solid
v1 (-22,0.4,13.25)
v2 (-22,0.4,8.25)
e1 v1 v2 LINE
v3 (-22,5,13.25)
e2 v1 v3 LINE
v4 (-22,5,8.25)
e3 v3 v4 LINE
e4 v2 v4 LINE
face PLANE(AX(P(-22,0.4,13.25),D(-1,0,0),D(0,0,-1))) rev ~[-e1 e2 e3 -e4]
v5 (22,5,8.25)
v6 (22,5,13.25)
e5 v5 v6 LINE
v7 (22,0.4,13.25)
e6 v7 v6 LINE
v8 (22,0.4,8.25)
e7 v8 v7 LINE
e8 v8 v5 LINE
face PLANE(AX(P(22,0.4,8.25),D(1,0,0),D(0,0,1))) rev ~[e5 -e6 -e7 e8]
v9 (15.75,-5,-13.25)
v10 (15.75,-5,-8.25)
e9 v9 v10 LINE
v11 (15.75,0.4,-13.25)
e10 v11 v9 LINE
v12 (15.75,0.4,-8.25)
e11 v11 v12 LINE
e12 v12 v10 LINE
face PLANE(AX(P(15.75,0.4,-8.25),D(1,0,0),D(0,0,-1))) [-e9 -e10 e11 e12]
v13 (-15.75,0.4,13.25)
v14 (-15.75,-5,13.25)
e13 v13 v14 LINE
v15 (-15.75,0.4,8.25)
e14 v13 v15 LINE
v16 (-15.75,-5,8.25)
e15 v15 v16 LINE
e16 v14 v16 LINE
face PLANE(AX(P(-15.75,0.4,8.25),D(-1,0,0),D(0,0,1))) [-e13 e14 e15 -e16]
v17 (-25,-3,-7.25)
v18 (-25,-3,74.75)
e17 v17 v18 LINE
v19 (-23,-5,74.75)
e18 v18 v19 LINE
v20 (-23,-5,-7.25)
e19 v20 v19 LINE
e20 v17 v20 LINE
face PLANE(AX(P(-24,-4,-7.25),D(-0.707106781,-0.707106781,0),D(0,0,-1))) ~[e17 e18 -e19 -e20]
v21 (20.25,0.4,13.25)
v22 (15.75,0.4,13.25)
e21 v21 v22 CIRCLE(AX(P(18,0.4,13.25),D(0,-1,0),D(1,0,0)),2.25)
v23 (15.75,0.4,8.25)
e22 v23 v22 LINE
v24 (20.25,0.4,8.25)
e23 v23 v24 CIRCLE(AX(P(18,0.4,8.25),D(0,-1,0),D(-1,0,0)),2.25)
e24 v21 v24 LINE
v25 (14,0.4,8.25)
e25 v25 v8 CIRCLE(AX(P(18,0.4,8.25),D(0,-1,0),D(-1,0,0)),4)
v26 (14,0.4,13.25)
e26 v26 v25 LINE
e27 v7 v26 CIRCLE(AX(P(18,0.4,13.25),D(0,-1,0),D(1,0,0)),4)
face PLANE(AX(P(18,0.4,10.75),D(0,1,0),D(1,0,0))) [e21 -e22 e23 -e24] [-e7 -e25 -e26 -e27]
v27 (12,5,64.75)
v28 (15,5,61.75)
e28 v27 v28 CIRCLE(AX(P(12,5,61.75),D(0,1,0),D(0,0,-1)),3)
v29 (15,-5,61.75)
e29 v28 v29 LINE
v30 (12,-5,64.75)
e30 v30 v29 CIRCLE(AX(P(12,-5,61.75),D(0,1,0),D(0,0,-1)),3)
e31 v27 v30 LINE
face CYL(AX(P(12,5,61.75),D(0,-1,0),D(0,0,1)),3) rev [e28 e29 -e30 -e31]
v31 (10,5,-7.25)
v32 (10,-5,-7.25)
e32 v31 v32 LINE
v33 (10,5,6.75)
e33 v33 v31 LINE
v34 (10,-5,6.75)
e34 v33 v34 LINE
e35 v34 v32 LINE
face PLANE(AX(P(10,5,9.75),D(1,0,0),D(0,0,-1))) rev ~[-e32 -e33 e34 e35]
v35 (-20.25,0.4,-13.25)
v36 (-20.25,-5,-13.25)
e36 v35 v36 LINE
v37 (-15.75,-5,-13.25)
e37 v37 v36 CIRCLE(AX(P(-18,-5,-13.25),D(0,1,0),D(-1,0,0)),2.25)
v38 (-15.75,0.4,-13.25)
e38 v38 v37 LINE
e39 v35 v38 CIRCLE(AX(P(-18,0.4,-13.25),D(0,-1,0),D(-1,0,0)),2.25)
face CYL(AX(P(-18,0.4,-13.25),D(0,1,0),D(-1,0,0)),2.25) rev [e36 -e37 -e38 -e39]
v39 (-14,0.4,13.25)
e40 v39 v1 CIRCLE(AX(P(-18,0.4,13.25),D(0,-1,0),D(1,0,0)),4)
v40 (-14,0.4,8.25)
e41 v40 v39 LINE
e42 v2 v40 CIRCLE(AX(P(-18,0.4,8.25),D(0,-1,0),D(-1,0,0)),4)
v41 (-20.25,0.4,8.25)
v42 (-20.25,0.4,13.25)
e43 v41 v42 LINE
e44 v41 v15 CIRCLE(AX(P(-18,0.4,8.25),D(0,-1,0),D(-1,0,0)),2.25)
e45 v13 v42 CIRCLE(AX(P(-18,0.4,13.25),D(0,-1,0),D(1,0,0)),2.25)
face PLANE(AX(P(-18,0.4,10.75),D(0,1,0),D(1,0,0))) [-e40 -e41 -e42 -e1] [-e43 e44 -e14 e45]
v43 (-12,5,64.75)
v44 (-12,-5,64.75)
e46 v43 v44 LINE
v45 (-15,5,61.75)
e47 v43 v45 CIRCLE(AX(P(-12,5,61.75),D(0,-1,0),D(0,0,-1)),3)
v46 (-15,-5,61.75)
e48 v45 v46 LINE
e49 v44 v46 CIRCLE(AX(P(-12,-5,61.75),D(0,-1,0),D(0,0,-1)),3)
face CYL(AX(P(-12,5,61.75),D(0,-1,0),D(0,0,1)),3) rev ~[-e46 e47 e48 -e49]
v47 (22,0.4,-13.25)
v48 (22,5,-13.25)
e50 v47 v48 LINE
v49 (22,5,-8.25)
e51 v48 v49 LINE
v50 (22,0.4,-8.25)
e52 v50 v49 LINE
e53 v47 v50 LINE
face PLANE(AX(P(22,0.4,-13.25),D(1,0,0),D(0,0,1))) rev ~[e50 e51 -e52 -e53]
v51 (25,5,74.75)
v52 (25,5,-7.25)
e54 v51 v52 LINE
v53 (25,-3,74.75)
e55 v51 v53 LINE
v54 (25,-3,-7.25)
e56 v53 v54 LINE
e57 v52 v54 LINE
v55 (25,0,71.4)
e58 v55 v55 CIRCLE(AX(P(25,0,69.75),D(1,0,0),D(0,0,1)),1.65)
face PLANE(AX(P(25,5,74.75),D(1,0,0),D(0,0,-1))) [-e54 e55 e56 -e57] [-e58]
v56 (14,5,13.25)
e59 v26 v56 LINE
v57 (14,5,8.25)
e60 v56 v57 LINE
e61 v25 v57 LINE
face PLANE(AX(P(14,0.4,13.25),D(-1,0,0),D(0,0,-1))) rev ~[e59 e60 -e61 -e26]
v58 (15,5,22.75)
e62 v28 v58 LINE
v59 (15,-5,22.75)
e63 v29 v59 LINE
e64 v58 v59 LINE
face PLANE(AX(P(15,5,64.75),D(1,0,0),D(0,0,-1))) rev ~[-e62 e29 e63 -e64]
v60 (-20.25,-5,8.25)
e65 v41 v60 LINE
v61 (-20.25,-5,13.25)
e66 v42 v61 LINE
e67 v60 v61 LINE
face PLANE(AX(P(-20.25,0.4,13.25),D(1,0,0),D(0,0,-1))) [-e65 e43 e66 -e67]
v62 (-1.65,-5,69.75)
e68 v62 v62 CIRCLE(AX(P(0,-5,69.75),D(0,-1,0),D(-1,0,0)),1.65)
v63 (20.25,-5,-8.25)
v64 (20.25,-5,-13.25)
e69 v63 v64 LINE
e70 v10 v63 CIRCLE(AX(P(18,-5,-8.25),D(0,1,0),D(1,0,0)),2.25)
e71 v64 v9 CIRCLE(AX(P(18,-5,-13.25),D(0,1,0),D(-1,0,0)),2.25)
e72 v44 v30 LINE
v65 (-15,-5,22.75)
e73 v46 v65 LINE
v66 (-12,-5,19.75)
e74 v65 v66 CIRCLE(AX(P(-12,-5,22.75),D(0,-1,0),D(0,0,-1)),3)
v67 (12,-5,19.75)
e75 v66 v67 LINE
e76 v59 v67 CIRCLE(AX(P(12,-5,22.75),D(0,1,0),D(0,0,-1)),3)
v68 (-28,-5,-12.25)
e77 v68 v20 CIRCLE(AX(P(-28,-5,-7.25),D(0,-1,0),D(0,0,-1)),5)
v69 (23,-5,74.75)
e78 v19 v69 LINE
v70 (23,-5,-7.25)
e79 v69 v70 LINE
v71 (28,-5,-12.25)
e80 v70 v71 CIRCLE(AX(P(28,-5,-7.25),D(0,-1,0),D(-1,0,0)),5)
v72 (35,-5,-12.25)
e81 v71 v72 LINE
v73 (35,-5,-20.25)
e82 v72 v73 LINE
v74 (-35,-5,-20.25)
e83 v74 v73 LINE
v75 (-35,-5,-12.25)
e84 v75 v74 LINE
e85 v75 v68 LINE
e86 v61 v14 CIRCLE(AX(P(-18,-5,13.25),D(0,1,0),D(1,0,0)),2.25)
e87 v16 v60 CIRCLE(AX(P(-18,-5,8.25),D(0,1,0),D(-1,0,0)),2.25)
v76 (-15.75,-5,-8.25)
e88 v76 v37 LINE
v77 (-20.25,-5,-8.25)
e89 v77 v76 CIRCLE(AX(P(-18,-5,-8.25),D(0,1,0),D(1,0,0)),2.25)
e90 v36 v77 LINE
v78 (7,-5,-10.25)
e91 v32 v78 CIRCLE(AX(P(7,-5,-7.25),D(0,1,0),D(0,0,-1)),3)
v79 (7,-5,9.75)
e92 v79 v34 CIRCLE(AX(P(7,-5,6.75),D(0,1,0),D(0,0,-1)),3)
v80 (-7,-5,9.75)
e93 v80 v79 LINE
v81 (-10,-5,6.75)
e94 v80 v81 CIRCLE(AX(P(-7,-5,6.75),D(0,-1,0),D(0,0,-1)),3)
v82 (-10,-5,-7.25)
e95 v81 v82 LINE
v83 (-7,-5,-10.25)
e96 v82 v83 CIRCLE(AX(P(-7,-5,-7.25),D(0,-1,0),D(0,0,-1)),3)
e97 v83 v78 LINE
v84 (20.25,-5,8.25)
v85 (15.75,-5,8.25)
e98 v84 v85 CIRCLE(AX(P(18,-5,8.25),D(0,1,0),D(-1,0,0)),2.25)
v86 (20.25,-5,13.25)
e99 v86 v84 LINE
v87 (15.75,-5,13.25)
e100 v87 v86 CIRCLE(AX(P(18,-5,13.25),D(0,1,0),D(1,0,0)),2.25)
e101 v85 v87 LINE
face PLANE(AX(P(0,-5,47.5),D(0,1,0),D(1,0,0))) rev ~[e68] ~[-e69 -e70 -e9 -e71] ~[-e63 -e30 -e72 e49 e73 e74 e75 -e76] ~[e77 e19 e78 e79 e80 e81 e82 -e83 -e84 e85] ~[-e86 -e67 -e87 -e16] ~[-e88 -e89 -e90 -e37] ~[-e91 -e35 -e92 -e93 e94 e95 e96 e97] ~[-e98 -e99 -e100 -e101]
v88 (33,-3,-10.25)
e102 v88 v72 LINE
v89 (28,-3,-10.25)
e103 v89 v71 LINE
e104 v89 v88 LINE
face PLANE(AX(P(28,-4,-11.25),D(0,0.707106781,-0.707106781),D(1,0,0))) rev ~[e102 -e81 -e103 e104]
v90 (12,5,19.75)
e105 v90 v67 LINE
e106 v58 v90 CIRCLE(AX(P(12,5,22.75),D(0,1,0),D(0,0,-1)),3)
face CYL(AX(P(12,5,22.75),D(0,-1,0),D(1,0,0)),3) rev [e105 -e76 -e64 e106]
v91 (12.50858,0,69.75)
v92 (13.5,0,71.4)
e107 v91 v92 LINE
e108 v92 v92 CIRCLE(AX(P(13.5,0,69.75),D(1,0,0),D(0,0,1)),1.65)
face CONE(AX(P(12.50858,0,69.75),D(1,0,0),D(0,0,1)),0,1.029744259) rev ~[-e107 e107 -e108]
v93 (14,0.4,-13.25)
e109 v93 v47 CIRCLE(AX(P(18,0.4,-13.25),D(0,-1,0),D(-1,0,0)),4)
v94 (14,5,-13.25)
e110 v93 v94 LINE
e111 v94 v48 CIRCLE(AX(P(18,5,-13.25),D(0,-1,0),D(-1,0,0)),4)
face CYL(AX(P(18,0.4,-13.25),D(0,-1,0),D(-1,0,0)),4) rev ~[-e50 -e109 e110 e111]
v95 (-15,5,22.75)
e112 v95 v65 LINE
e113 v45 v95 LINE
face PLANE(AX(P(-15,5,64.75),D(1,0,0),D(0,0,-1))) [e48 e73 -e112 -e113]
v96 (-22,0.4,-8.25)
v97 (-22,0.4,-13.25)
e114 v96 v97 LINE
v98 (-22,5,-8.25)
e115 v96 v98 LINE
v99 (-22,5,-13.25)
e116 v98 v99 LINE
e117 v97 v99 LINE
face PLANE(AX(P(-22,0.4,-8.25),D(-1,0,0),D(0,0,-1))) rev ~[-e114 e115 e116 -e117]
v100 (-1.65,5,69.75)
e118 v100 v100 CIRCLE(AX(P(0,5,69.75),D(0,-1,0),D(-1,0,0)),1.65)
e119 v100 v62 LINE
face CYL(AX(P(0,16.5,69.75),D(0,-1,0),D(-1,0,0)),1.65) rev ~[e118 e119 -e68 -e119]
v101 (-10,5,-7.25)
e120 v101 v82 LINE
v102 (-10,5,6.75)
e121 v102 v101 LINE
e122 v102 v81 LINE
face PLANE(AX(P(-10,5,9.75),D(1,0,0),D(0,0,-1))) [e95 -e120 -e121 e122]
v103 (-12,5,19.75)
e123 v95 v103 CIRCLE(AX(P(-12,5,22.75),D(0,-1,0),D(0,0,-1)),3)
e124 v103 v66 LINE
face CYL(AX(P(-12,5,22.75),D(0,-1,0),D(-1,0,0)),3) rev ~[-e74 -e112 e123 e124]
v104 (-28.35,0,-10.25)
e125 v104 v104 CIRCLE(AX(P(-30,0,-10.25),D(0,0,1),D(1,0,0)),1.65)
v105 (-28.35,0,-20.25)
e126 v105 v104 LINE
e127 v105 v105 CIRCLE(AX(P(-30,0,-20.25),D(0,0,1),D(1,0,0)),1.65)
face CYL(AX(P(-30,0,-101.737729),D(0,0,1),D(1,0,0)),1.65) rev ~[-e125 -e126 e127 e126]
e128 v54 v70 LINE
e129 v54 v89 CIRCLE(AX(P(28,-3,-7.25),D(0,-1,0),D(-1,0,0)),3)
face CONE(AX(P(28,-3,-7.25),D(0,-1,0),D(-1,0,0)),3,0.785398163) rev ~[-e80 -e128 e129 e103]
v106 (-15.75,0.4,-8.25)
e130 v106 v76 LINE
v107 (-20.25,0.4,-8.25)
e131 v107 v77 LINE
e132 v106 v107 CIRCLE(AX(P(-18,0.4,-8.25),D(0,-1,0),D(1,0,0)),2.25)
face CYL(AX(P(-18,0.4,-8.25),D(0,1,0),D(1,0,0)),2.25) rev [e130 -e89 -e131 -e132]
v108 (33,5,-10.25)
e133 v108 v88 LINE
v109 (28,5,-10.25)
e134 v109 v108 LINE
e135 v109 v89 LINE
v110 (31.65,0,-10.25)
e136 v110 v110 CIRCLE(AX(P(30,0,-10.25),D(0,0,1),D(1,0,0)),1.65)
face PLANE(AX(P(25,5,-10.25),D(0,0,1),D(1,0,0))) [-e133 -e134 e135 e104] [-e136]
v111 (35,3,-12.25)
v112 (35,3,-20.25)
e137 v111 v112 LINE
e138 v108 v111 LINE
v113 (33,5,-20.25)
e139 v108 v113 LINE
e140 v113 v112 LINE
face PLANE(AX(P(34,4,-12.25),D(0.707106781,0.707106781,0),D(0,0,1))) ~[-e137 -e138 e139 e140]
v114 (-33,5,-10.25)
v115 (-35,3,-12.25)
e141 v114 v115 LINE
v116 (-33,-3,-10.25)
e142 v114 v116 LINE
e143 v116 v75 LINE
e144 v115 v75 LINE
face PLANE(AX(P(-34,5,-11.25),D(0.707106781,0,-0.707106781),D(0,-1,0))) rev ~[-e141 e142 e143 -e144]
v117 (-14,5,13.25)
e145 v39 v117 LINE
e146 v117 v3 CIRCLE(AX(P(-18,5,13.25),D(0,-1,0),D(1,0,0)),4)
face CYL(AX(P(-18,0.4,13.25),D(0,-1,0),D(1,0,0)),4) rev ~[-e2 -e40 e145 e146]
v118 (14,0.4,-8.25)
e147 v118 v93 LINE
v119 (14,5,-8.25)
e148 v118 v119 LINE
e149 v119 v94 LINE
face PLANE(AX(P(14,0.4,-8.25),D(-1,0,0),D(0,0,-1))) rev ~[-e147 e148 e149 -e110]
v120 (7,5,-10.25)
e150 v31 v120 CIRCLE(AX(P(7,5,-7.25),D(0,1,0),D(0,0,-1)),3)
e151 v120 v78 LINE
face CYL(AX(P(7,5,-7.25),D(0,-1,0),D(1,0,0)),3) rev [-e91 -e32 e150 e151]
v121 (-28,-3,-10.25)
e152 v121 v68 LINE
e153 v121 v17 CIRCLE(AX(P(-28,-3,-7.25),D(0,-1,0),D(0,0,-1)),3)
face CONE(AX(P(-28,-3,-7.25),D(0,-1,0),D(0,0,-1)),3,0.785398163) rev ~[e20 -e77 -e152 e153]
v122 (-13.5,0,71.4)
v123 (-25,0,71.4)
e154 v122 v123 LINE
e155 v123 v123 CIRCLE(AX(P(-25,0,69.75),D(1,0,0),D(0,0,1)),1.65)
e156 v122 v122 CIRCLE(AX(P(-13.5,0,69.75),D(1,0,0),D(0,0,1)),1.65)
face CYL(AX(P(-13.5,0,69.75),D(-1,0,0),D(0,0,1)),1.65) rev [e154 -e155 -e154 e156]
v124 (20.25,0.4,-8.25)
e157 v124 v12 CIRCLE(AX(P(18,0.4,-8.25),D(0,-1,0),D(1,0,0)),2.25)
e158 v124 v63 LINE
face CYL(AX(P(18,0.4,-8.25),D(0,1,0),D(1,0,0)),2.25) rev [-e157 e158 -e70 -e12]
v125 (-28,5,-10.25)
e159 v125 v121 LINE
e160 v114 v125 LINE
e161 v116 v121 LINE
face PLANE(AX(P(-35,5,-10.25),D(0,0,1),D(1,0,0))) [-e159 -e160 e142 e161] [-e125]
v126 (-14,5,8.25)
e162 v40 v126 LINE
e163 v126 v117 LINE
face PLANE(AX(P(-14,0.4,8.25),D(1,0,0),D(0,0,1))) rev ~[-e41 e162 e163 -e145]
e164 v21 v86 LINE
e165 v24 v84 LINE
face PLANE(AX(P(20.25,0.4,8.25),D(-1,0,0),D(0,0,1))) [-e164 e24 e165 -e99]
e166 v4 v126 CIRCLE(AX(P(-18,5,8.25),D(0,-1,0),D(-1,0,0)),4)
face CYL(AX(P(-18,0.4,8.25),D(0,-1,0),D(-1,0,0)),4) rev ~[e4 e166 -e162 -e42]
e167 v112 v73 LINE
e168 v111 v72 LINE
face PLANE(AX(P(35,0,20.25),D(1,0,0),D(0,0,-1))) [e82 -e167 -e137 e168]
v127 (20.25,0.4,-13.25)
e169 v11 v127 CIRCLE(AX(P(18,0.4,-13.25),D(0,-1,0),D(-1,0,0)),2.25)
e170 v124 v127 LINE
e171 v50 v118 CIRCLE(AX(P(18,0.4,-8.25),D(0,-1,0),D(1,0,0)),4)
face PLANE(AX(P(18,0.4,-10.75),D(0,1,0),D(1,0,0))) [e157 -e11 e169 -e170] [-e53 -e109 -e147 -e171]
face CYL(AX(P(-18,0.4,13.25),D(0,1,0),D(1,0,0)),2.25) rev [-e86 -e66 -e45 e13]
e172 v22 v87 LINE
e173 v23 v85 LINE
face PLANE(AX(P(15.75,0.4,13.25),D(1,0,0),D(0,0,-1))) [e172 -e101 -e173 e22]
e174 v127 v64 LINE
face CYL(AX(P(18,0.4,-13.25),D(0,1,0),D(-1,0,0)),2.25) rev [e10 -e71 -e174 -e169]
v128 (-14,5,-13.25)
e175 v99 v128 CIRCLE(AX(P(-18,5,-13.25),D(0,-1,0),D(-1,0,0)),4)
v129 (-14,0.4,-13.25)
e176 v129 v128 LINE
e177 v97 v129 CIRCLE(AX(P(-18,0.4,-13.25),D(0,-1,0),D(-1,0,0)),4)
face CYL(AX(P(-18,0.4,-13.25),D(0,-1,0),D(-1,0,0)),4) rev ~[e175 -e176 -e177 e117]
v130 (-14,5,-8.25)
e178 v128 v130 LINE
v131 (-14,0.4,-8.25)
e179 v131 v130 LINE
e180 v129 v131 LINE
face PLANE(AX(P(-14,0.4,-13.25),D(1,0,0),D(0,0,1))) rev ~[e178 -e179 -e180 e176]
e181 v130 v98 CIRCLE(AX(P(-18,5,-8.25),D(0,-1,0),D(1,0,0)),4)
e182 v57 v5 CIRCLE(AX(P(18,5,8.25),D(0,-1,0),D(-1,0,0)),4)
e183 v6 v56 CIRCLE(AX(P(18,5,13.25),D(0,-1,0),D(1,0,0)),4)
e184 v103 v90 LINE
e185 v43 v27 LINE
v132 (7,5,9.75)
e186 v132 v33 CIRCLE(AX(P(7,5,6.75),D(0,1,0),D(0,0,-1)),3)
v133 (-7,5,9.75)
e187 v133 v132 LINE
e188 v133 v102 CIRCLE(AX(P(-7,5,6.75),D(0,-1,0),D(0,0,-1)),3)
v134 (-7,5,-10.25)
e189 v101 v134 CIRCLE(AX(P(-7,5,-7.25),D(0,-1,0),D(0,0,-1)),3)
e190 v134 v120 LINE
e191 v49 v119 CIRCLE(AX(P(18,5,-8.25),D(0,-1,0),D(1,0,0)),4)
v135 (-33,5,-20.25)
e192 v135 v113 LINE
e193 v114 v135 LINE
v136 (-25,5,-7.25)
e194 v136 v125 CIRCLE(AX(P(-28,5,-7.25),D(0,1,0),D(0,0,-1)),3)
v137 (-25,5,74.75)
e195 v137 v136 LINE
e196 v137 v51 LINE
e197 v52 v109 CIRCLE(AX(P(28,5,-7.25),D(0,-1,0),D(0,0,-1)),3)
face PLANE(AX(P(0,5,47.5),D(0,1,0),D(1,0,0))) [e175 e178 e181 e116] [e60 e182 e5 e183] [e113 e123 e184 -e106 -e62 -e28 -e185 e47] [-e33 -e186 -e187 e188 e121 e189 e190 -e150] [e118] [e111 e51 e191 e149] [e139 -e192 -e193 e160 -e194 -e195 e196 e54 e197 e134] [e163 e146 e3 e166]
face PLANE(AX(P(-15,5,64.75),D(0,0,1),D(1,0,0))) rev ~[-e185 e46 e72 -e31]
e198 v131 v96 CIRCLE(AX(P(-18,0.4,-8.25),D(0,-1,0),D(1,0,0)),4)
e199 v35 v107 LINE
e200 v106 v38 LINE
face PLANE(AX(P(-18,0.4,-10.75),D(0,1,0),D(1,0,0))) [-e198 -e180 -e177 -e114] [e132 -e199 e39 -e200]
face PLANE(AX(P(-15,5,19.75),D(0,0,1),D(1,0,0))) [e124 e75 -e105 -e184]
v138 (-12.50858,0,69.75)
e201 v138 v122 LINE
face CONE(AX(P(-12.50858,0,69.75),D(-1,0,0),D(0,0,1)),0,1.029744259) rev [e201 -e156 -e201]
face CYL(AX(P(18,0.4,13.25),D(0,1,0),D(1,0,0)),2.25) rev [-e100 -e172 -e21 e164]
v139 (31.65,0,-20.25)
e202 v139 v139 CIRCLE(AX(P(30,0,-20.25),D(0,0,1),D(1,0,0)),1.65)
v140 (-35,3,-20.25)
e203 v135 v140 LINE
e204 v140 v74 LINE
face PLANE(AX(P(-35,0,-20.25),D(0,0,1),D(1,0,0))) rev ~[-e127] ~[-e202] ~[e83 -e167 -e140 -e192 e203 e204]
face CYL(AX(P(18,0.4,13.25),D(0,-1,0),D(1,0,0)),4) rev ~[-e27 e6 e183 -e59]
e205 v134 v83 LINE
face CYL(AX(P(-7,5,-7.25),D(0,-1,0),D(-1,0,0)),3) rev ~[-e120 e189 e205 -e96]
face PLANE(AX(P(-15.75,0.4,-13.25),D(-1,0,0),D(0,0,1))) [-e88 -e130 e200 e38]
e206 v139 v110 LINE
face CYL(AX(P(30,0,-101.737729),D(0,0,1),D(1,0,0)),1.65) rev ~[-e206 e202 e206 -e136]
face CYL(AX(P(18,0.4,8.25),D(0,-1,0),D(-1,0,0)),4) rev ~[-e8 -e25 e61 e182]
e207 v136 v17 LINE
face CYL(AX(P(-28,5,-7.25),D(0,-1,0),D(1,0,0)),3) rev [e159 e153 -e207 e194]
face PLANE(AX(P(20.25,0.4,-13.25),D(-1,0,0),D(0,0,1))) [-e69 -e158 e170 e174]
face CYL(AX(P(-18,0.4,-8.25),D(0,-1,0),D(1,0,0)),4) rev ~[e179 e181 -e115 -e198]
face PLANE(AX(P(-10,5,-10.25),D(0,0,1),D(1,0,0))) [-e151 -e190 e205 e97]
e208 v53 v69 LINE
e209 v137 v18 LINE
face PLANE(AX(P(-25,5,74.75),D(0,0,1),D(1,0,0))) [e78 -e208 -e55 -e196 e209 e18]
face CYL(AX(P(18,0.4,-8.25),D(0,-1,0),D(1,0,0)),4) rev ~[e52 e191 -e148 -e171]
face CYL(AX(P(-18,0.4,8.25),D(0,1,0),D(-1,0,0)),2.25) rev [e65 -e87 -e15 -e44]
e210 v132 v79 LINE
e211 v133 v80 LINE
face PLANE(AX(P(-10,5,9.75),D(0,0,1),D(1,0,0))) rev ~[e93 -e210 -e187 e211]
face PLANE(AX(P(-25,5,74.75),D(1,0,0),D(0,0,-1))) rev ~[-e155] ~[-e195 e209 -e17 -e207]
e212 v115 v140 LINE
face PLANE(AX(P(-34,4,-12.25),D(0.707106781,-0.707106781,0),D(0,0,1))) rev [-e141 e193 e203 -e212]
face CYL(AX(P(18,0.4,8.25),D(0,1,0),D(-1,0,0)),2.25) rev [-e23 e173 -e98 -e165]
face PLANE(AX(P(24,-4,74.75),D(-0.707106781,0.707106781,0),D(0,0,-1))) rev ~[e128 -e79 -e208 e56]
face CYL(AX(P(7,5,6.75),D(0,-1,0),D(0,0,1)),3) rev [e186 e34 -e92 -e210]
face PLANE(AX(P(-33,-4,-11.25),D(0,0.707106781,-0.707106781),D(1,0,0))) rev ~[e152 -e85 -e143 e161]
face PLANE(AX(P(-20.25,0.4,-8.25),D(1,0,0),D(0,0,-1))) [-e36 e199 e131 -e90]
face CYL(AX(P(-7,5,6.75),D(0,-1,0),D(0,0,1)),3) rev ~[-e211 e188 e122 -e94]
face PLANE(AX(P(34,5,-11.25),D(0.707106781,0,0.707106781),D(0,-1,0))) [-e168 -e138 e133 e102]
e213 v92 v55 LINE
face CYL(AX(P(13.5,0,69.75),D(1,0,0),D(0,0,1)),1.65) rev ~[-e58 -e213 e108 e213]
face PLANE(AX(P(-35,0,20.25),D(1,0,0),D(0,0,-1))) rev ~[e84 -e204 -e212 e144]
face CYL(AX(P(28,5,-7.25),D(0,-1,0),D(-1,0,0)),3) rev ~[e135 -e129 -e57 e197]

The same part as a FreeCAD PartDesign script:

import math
import FreeCAD as App
import Part
import Sketcher
Q = App.Units.Quantity


def edges_at(feature, points):
    """Names of the edges that pass closest to the given points."""
    edges = feature.Shape.Edges
    near = lambda p: min(range(len(edges)), key=lambda i: edges[i].distToShape(Part.Vertex(*p))[0])
    return sorted({f"Edge{near(p) + 1}" for p in points})

doc = App.newDocument("Part")
params = doc.addObject("Spreadsheet::Sheet", "Params")
for row, (alias, value) in enumerate([
    ("sketch1_width", "70 mm"),
    ("sketch1_height", "40.5 mm"),
    ("pad1_length", "10 mm"),
    ("sketch2_diameter", "4.5 mm"),
    ("hole_diameter", "4.5 mm"),
    ("hole_cbore_diameter", "8 mm"),
    ("hole_cbore_depth", "4.6 mm"),
    ("sketch3_radius", "4 mm"),
    ("sketch3_height", "5 mm"),
    ("sketch4_height", "5 mm"),
    ("sketch4_radius", "2.25 mm"),
    ("sketch5_diameter", "3.3 mm"),
    ("hole2_diameter", "3.3 mm"),
    ("sketch6_width", "10 mm"),
    ("sketch6_height", "30.5 mm"),
    ("sketch7_width", "50 mm"),
    ("sketch7_height", "54.5 mm"),
    ("pad2_length", "10 mm"),
    ("sketch8_width", "20 mm"),
    ("sketch8_width2", "30 mm"),
    ("sketch8_height", "45 mm"),
    ("sketch9_width", "11.5 mm"),
    ("sketch9_height", "1.65 mm"),
    ("groove_angle", "360 deg"),
    ("sketch10_diameter", "3.3 mm"),
    ("hole3_diameter", "3.3 mm"),
    ("hole3_depth", "11.5 mm"),
    ("fillet_radius", "3 mm"),
    ("chamfer_size", "2 mm"),
    ("chamfer2_size", "2 mm"),
    ("chamfer3_size", "2 mm"),
], start=1):
    params.set(f"A{row}", alias)
    params.set(f"B{row}", "=" + value)
    params.setAlias(f"B{row}", alias)

body = doc.addObject("PartDesign::Body", "Body")

# Sketch on XZ plane
sketch1 = doc.addObject("Sketcher::SketchObject", "Sketch")
body.addObject(sketch1)
sketch1.AttachmentSupport = (doc.XZ_Plane, [""])
sketch1.MapMode = "FlatFace"
sketch1.addGeometry([
    Part.LineSegment(App.Vector(-35, -20, 0), App.Vector(-35, 20, 0)),
    Part.LineSegment(App.Vector(-35, 20, 0), App.Vector(35, 20, 0)),
    Part.LineSegment(App.Vector(35, 20, 0), App.Vector(35, -20, 0)),
    Part.LineSegment(App.Vector(35, -20, 0), App.Vector(-35, -20, 0)),
], False)
sketch1.addConstraint([
    Sketcher.Constraint("Coincident", 0, 2, 1, 1),
    Sketcher.Constraint("Coincident", 1, 2, 2, 1),
    Sketcher.Constraint("Coincident", 2, 2, 3, 1),
    Sketcher.Constraint("Coincident", 3, 2, 0, 1),
    Sketcher.Constraint("Vertical", 0),
    Sketcher.Constraint("Horizontal", 1),
    Sketcher.Constraint("Vertical", 2),
    Sketcher.Constraint("Horizontal", 3),
    Sketcher.Constraint("Symmetric", 0, 2, 2, 2, -1, 1),
    Sketcher.Constraint("DistanceX", 1, 1, 1, 2, 70.0),
    Sketcher.Constraint("DistanceY", 0, 1, 0, 2, 40.5),
])
sketch1.setExpression("Constraints[9]", "Params.sketch1_width")
sketch1.setExpression("Constraints[10]", "Params.sketch1_height")
pad1 = doc.addObject("PartDesign::Pad", "Pad")
body.addObject(pad1)
pad1.Profile = sketch1
pad1.setExpression("Length", "Params.pad1_length")
pad1.Midplane = True

# Sketch on XZ plane
sketch2 = doc.addObject("Sketcher::SketchObject", "Sketch001")
body.addObject(sketch2)
sketch2.AttachmentSupport = (doc.XZ_Plane, [""])
sketch2.MapMode = "FlatFace"
sketch2.AttachmentOffset = App.Placement(App.Vector(0, 0, -5), App.Rotation())
sketch2.addGeometry([
    Part.Circle(App.Vector(-18, -10.8, 0), App.Vector(0, 0, 1), 2.2),
    Part.Circle(App.Vector(18, -10.8, 0), App.Vector(0, 0, 1), 2.2),
    Part.Circle(App.Vector(18, 10.8, 0), App.Vector(0, 0, 1), 2.2),
    Part.Circle(App.Vector(-18, 10.8, 0), App.Vector(0, 0, 1), 2.2),
], False)
sketch2.addConstraint([
    Sketcher.Constraint("Equal", 0, 1),
    Sketcher.Constraint("Equal", 1, 2),
    Sketcher.Constraint("Equal", 2, 3),
    Sketcher.Constraint("Symmetric", 0, 3, 2, 3, -1, 1),
    Sketcher.Constraint("Symmetric", 1, 3, 3, 3, -1, 1),
    Sketcher.Constraint("Symmetric", 0, 3, 1, 3, -2),
    Sketcher.Constraint("Diameter", 0, 4.5),
    Sketcher.Constraint("DistanceX", 0, 3, -1, 1, 18.0),
    Sketcher.Constraint("DistanceY", 1, 3, 2, 3, 21.5),
])
sketch2.setExpression("Constraints[6]", "Params.sketch2_diameter")
doc.recompute()
hole = doc.addObject("PartDesign::Hole", "Hole")
body.addObject(hole)
hole.Profile = sketch2
hole.ThreadType = "None"
hole.setExpression("Diameter", "Params.hole_diameter")
hole.DepthType = "ThroughAll"
hole.HoleCutType = "Counterbore"
hole.setExpression("HoleCutDiameter", "Params.hole_cbore_diameter")
hole.setExpression("HoleCutDepth", "Params.hole_cbore_depth")
hole.Reversed = True

# Sketch on XZ plane
sketch3 = doc.addObject("Sketcher::SketchObject", "Sketch002")
body.addObject(sketch3)
sketch3.AttachmentSupport = (doc.XZ_Plane, [""])
sketch3.MapMode = "FlatFace"
sketch3.AttachmentOffset = App.Placement(App.Vector(0, 0, -0.4), App.Rotation())
sketch3.addGeometry([
    Part.LineSegment(App.Vector(-22, -13.2, 0), App.Vector(-22, -8.2, 0)),  # 0
    Part.ArcOfCircle(Part.Circle(App.Vector(-18, -8.2, 0), App.Vector(0, 0, 1), 4), math.radians(0), math.radians(180)),  # 1
    Part.LineSegment(App.Vector(-14, -8.2, 0), App.Vector(-14, -13.2, 0)),  # 2
    Part.ArcOfCircle(Part.Circle(App.Vector(-18, -13.2, 0), App.Vector(0, 0, 1), 4), math.radians(180), math.radians(360)),  # 3
    Part.LineSegment(App.Vector(22, -8.2, 0), App.Vector(22, -13.2, 0)),  # 4
    Part.ArcOfCircle(Part.Circle(App.Vector(18, -13.2, 0), App.Vector(0, 0, 1), 4), math.radians(180), math.radians(360)),  # 5
    Part.LineSegment(App.Vector(14, -13.2, 0), App.Vector(14, -8.2, 0)),  # 6
    Part.ArcOfCircle(Part.Circle(App.Vector(18, -8.2, 0), App.Vector(0, 0, 1), 4), math.radians(0), math.radians(180)),  # 7
    Part.LineSegment(App.Vector(-14, 13.2, 0), App.Vector(-14, 8.2, 0)),  # 8
    Part.ArcOfCircle(Part.Circle(App.Vector(-18, 8.2, 0), App.Vector(0, 0, 1), 4), math.radians(180), math.radians(360)),  # 9
    Part.LineSegment(App.Vector(-22, 8.2, 0), App.Vector(-22, 13.2, 0)),  # 10
    Part.ArcOfCircle(Part.Circle(App.Vector(-18, 13.2, 0), App.Vector(0, 0, 1), 4), math.radians(0), math.radians(180)),  # 11
    Part.LineSegment(App.Vector(22, 13.2, 0), App.Vector(22, 8.2, 0)),  # 12
    Part.ArcOfCircle(Part.Circle(App.Vector(18, 8.2, 0), App.Vector(0, 0, 1), 4), math.radians(180), math.radians(360)),  # 13
    Part.LineSegment(App.Vector(14, 8.2, 0), App.Vector(14, 13.2, 0)),  # 14
    Part.ArcOfCircle(Part.Circle(App.Vector(18, 13.2, 0), App.Vector(0, 0, 1), 4), math.radians(0), math.radians(180)),  # 15
], False)
sketch3.addConstraint([
    Sketcher.Constraint("Tangent", 0, 2, 1, 2),
    Sketcher.Constraint("Tangent", 1, 1, 2, 1),
    Sketcher.Constraint("Tangent", 2, 2, 3, 2),
    Sketcher.Constraint("Tangent", 3, 1, 0, 1),
    Sketcher.Constraint("Tangent", 4, 2, 5, 2),
    Sketcher.Constraint("Tangent", 5, 1, 6, 1),
    Sketcher.Constraint("Tangent", 6, 2, 7, 2),
    Sketcher.Constraint("Tangent", 7, 1, 4, 1),
    Sketcher.Constraint("Tangent", 8, 2, 9, 2),
    Sketcher.Constraint("Tangent", 9, 1, 10, 1),
    Sketcher.Constraint("Tangent", 10, 2, 11, 2),
    Sketcher.Constraint("Tangent", 11, 1, 8, 1),
    Sketcher.Constraint("Tangent", 12, 2, 13, 2),
    Sketcher.Constraint("Tangent", 13, 1, 14, 1),
    Sketcher.Constraint("Tangent", 14, 2, 15, 2),
    Sketcher.Constraint("Tangent", 15, 1, 12, 1),
    Sketcher.Constraint("Vertical", 0),
    Sketcher.Constraint("Vertical", 2),
    Sketcher.Constraint("Vertical", 4),
    Sketcher.Constraint("Vertical", 6),
    Sketcher.Constraint("Vertical", 8),
    Sketcher.Constraint("Vertical", 10),
    Sketcher.Constraint("Vertical", 12),
    Sketcher.Constraint("Vertical", 14),
    Sketcher.Constraint("Equal", 3, 5),
    Sketcher.Constraint("Equal", 7, 9),
    Sketcher.Constraint("Equal", 11, 13),
    Sketcher.Constraint("Symmetric", 7, 3, 9, 3, -1, 1),
    Sketcher.Constraint("Symmetric", 1, 3, 13, 3, -1, 1),
    Sketcher.Constraint("Symmetric", 3, 3, 5, 3, -2),
    Sketcher.Constraint("Horizontal", 1, 3, 7, 3),
    Sketcher.Constraint("Horizontal", 11, 3, 15, 3),
    Sketcher.Constraint("Equal", 6, 8),
    Sketcher.Constraint("Radius", 1, 4.0),
    Sketcher.Constraint("DistanceY", 0, 1, 0, 2, 5.0),
    Sketcher.Constraint("DistanceX", 1, 3, -1, 1, 18.0),
    Sketcher.Constraint("DistanceY", 1, 3, 9, 3, 16.5),
])
sketch3.setExpression("Constraints[33]", "Params.sketch3_radius")
sketch3.setExpression("Constraints[34]", "Params.sketch3_height")
pocket1 = doc.addObject("PartDesign::Pocket", "Pocket")
body.addObject(pocket1)
pocket1.Profile = sketch3
pocket1.Type = "ThroughAll"

# Sketch on XZ plane
sketch4 = doc.addObject("Sketcher::SketchObject", "Sketch003")
body.addObject(sketch4)
sketch4.AttachmentSupport = (doc.XZ_Plane, [""])
sketch4.MapMode = "FlatFace"
sketch4.AttachmentOffset = App.Placement(App.Vector(0, 0, -0.4), App.Rotation())
sketch4.addGeometry([
    Part.LineSegment(App.Vector(-15.8, -8.2, 0), App.Vector(-15.8, -13.2, 0)),  # 0
    Part.ArcOfCircle(Part.Circle(App.Vector(-18, -13.2, 0), App.Vector(0, 0, 1), 2.2), math.radians(180), math.radians(360)),  # 1
    Part.LineSegment(App.Vector(-20.2, -13.2, 0), App.Vector(-20.2, -8.2, 0)),  # 2
    Part.ArcOfCircle(Part.Circle(App.Vector(-18, -8.2, 0), App.Vector(0, 0, 1), 2.2), math.radians(0), math.radians(180)),  # 3
    Part.LineSegment(App.Vector(20.2, -8.2, 0), App.Vector(20.2, -13.2, 0)),  # 4
    Part.ArcOfCircle(Part.Circle(App.Vector(18, -13.2, 0), App.Vector(0, 0, 1), 2.2), math.radians(180), math.radians(360)),  # 5
    Part.LineSegment(App.Vector(15.8, -13.2, 0), App.Vector(15.8, -8.2, 0)),  # 6
    Part.ArcOfCircle(Part.Circle(App.Vector(18, -8.2, 0), App.Vector(0, 0, 1), 2.2), math.radians(0), math.radians(180)),  # 7
    Part.LineSegment(App.Vector(-15.8, 13.2, 0), App.Vector(-15.8, 8.2, 0)),  # 8
    Part.ArcOfCircle(Part.Circle(App.Vector(-18, 8.2, 0), App.Vector(0, 0, 1), 2.2), math.radians(180), math.radians(360)),  # 9
    Part.LineSegment(App.Vector(-20.2, 8.2, 0), App.Vector(-20.2, 13.2, 0)),  # 10
    Part.ArcOfCircle(Part.Circle(App.Vector(-18, 13.2, 0), App.Vector(0, 0, 1), 2.2), math.radians(0), math.radians(180)),  # 11
    Part.LineSegment(App.Vector(20.2, 13.2, 0), App.Vector(20.2, 8.2, 0)),  # 12
    Part.ArcOfCircle(Part.Circle(App.Vector(18, 8.2, 0), App.Vector(0, 0, 1), 2.2), math.radians(180), math.radians(360)),  # 13
    Part.LineSegment(App.Vector(15.8, 8.2, 0), App.Vector(15.8, 13.2, 0)),  # 14
    Part.ArcOfCircle(Part.Circle(App.Vector(18, 13.2, 0), App.Vector(0, 0, 1), 2.2), math.radians(0), math.radians(180)),  # 15
], False)
sketch4.addConstraint([
    Sketcher.Constraint("Tangent", 0, 2, 1, 2),
    Sketcher.Constraint("Tangent", 1, 1, 2, 1),
    Sketcher.Constraint("Tangent", 2, 2, 3, 2),
    Sketcher.Constraint("Tangent", 3, 1, 0, 1),
    Sketcher.Constraint("Tangent", 4, 2, 5, 2),
    Sketcher.Constraint("Tangent", 5, 1, 6, 1),
    Sketcher.Constraint("Tangent", 6, 2, 7, 2),
    Sketcher.Constraint("Tangent", 7, 1, 4, 1),
    Sketcher.Constraint("Tangent", 8, 2, 9, 2),
    Sketcher.Constraint("Tangent", 9, 1, 10, 1),
    Sketcher.Constraint("Tangent", 10, 2, 11, 2),
    Sketcher.Constraint("Tangent", 11, 1, 8, 1),
    Sketcher.Constraint("Tangent", 12, 2, 13, 2),
    Sketcher.Constraint("Tangent", 13, 1, 14, 1),
    Sketcher.Constraint("Tangent", 14, 2, 15, 2),
    Sketcher.Constraint("Tangent", 15, 1, 12, 1),
    Sketcher.Constraint("Vertical", 0),
    Sketcher.Constraint("Vertical", 2),
    Sketcher.Constraint("Vertical", 4),
    Sketcher.Constraint("Vertical", 6),
    Sketcher.Constraint("Vertical", 8),
    Sketcher.Constraint("Vertical", 10),
    Sketcher.Constraint("Vertical", 12),
    Sketcher.Constraint("Vertical", 14),
    Sketcher.Constraint("Equal", 3, 5),
    Sketcher.Constraint("Equal", 7, 9),
    Sketcher.Constraint("Equal", 11, 13),
    Sketcher.Constraint("Symmetric", 7, 3, 9, 3, -1, 1),
    Sketcher.Constraint("Symmetric", 3, 3, 13, 3, -1, 1),
    Sketcher.Constraint("Symmetric", 1, 3, 5, 3, -2),
    Sketcher.Constraint("Horizontal", 3, 3, 7, 3),
    Sketcher.Constraint("Horizontal", 11, 3, 15, 3),
    Sketcher.Constraint("Equal", 6, 8),
    Sketcher.Constraint("DistanceY", 0, 2, 0, 1, 5.0),
    Sketcher.Constraint("Radius", 1, 2.25),
    Sketcher.Constraint("DistanceX", 1, 3, -1, 1, 18.0),
    Sketcher.Constraint("DistanceY", 3, 3, 9, 3, 16.5),
])
sketch4.setExpression("Constraints[33]", "Params.sketch4_height")
sketch4.setExpression("Constraints[34]", "Params.sketch4_radius")
pocket2 = doc.addObject("PartDesign::Pocket", "Pocket001")
body.addObject(pocket2)
pocket2.Profile = sketch4
pocket2.Type = "ThroughAll"
pocket2.Reversed = True

# Sketch on XY plane
sketch5 = doc.addObject("Sketcher::SketchObject", "Sketch004")
body.addObject(sketch5)
sketch5.AttachmentSupport = (doc.XY_Plane, [""])
sketch5.MapMode = "FlatFace"
sketch5.AttachmentOffset = App.Placement(App.Vector(0, 0, -20.25), App.Rotation())
sketch5.addGeometry([
    Part.Circle(App.Vector(30, 0, 0), App.Vector(0, 0, 1), 1.6),
    Part.Circle(App.Vector(-30, 0, 0), App.Vector(0, 0, 1), 1.6),
], False)
sketch5.addConstraint([
    Sketcher.Constraint("Equal", 0, 1),
    Sketcher.Constraint("Symmetric", 0, 3, 1, 3, -1, 1),
    Sketcher.Constraint("PointOnObject", 0, 3, -1),
    Sketcher.Constraint("Diameter", 0, 3.3),
    Sketcher.Constraint("DistanceX", -1, 1, 0, 3, 30.0),
])
sketch5.setExpression("Constraints[3]", "Params.sketch5_diameter")
doc.recompute()
hole2 = doc.addObject("PartDesign::Hole", "Hole001")
body.addObject(hole2)
hole2.Profile = sketch5
hole2.ThreadType = "None"
hole2.setExpression("Diameter", "Params.hole2_diameter")
hole2.DepthType = "ThroughAll"
hole2.Reversed = True

# Sketch on XZ plane
sketch6 = doc.addObject("Sketcher::SketchObject", "Sketch005")
body.addObject(sketch6)
sketch6.AttachmentSupport = (doc.XZ_Plane, [""])
sketch6.MapMode = "FlatFace"
sketch6.AttachmentOffset = App.Placement(App.Vector(0, 0, -5), App.Rotation())
sketch6.addGeometry([
    Part.LineSegment(App.Vector(-35, -10, 0), App.Vector(-35, 20, 0)),  # 0
    Part.LineSegment(App.Vector(-35, 20, 0), App.Vector(-25, 20, 0)),  # 1
    Part.LineSegment(App.Vector(-25, 20, 0), App.Vector(-25, -10, 0)),  # 2
    Part.LineSegment(App.Vector(-25, -10, 0), App.Vector(-35, -10, 0)),  # 3
    Part.LineSegment(App.Vector(25, -10, 0), App.Vector(25, 20, 0)),  # 4
    Part.LineSegment(App.Vector(25, 20, 0), App.Vector(35, 20, 0)),  # 5
    Part.LineSegment(App.Vector(35, 20, 0), App.Vector(35, -10, 0)),  # 6
    Part.LineSegment(App.Vector(35, -10, 0), App.Vector(25, -10, 0)),  # 7
], False)
sketch6.addConstraint([
    Sketcher.Constraint("Coincident", 0, 2, 1, 1),
    Sketcher.Constraint("Coincident", 1, 2, 2, 1),
    Sketcher.Constraint("Coincident", 2, 2, 3, 1),
    Sketcher.Constraint("Coincident", 3, 2, 0, 1),
    Sketcher.Constraint("Coincident", 4, 2, 5, 1),
    Sketcher.Constraint("Coincident", 5, 2, 6, 1),
    Sketcher.Constraint("Coincident", 6, 2, 7, 1),
    Sketcher.Constraint("Coincident", 7, 2, 4, 1),
    Sketcher.Constraint("Vertical", 0),
    Sketcher.Constraint("Horizontal", 1),
    Sketcher.Constraint("Vertical", 2),
    Sketcher.Constraint("Horizontal", 3),
    Sketcher.Constraint("Vertical", 4),
    Sketcher.Constraint("Horizontal", 5),
    Sketcher.Constraint("Vertical", 6),
    Sketcher.Constraint("Horizontal", 7),
    Sketcher.Constraint("Symmetric", 1, 2, 4, 2, -2),
    Sketcher.Constraint("Symmetric", 3, 2, 6, 2, -2),
    Sketcher.Constraint("DistanceX", 1, 1, 1, 2, 10.0),
    Sketcher.Constraint("DistanceY", 0, 1, 0, 2, 30.5),
    Sketcher.Constraint("DistanceX", 0, 2, -1, 1, 35.0),
    Sketcher.Constraint("DistanceY", -1, 1, 0, 2, 20.25),
])
sketch6.setExpression("Constraints[18]", "Params.sketch6_width")
sketch6.setExpression("Constraints[19]", "Params.sketch6_height")
pocket3 = doc.addObject("PartDesign::Pocket", "Pocket002")
body.addObject(pocket3)
pocket3.Profile = sketch6
pocket3.Type = "ThroughAll"
pocket3.Reversed = True

# Sketch on XZ plane
sketch7 = doc.addObject("Sketcher::SketchObject", "Sketch006")
body.addObject(sketch7)
sketch7.AttachmentSupport = (doc.XZ_Plane, [""])
sketch7.MapMode = "FlatFace"
sketch7.AttachmentOffset = App.Placement(App.Vector(0, 0, -5), App.Rotation())
sketch7.addGeometry([
    Part.LineSegment(App.Vector(-25, 20, 0), App.Vector(-25, 75, 0)),
    Part.LineSegment(App.Vector(-25, 75, 0), App.Vector(25, 75, 0)),
    Part.LineSegment(App.Vector(25, 75, 0), App.Vector(25, 20, 0)),
    Part.LineSegment(App.Vector(25, 20, 0), App.Vector(-25, 20, 0)),
], False)
sketch7.addConstraint([
    Sketcher.Constraint("Coincident", 0, 2, 1, 1),
    Sketcher.Constraint("Coincident", 1, 2, 2, 1),
    Sketcher.Constraint("Coincident", 2, 2, 3, 1),
    Sketcher.Constraint("Coincident", 3, 2, 0, 1),
    Sketcher.Constraint("Vertical", 0),
    Sketcher.Constraint("Horizontal", 1),
    Sketcher.Constraint("Vertical", 2),
    Sketcher.Constraint("Horizontal", 3),
    Sketcher.Constraint("DistanceX", 1, 1, 1, 2, 50.0),
    Sketcher.Constraint("DistanceY", 0, 1, 0, 2, 54.5),
    Sketcher.Constraint("DistanceX", 0, 2, -1, 1, 25.0),
    Sketcher.Constraint("DistanceY", -1, 1, 0, 2, 74.75),
])
sketch7.setExpression("Constraints[8]", "Params.sketch7_width")
sketch7.setExpression("Constraints[9]", "Params.sketch7_height")
pad2 = doc.addObject("PartDesign::Pad", "Pad001")
body.addObject(pad2)
pad2.Profile = sketch7
pad2.setExpression("Length", "Params.pad2_length")

# Sketch on XZ plane
sketch8 = doc.addObject("Sketcher::SketchObject", "Sketch007")
body.addObject(sketch8)
sketch8.AttachmentSupport = (doc.XZ_Plane, [""])
sketch8.MapMode = "FlatFace"
sketch8.AttachmentOffset = App.Placement(App.Vector(0, 0, -5), App.Rotation())
sketch8.addGeometry([
    Part.LineSegment(App.Vector(-10, -10, 0), App.Vector(-10, 10, 0)),  # 0
    Part.LineSegment(App.Vector(-10, 10, 0), App.Vector(10, 10, 0)),  # 1
    Part.LineSegment(App.Vector(10, 10, 0), App.Vector(10, -10, 0)),  # 2
    Part.LineSegment(App.Vector(10, -10, 0), App.Vector(-10, -10, 0)),  # 3
    Part.LineSegment(App.Vector(-15, 20, 0), App.Vector(-15, 65, 0)),  # 4
    Part.LineSegment(App.Vector(-15, 65, 0), App.Vector(15, 65, 0)),  # 5
    Part.LineSegment(App.Vector(15, 65, 0), App.Vector(15, 20, 0)),  # 6
    Part.LineSegment(App.Vector(15, 20, 0), App.Vector(-15, 20, 0)),  # 7
], False)
sketch8.addConstraint([
    Sketcher.Constraint("Coincident", 0, 2, 1, 1),
    Sketcher.Constraint("Coincident", 1, 2, 2, 1),
    Sketcher.Constraint("Coincident", 2, 2, 3, 1),
    Sketcher.Constraint("Coincident", 3, 2, 0, 1),
    Sketcher.Constraint("Coincident", 4, 2, 5, 1),
    Sketcher.Constraint("Coincident", 5, 2, 6, 1),
    Sketcher.Constraint("Coincident", 6, 2, 7, 1),
    Sketcher.Constraint("Coincident", 7, 2, 4, 1),
    Sketcher.Constraint("Vertical", 0),
    Sketcher.Constraint("Horizontal", 1),
    Sketcher.Constraint("Vertical", 2),
    Sketcher.Constraint("Horizontal", 3),
    Sketcher.Constraint("Vertical", 4),
    Sketcher.Constraint("Horizontal", 5),
    Sketcher.Constraint("Vertical", 6),
    Sketcher.Constraint("Horizontal", 7),
    Sketcher.Constraint("Equal", 3, 0),
    Sketcher.Constraint("DistanceX", 1, 1, 1, 2, 20.0),
    Sketcher.Constraint("DistanceX", 5, 1, 5, 2, 30.0),
    Sketcher.Constraint("DistanceY", 4, 1, 4, 2, 45.0),
    Sketcher.Constraint("DistanceX", 0, 2, -1, 1, 10.0),
    Sketcher.Constraint("DistanceX", 4, 2, -1, 1, 15.0),
    Sketcher.Constraint("DistanceY", 0, 2, 4, 2, 55.0),
    Sketcher.Constraint("DistanceY", -1, 1, 0, 2, 9.75),
])
sketch8.setExpression("Constraints[17]", "Params.sketch8_width")
sketch8.setExpression("Constraints[18]", "Params.sketch8_width2")
sketch8.setExpression("Constraints[19]", "Params.sketch8_height")
pocket4 = doc.addObject("PartDesign::Pocket", "Pocket003")
body.addObject(pocket4)
pocket4.Profile = sketch8
pocket4.Type = "ThroughAll"
pocket4.Reversed = True

# Sketch on XZ plane
sketch9 = doc.addObject("Sketcher::SketchObject", "Sketch008")
body.addObject(sketch9)
sketch9.AttachmentSupport = (doc.XZ_Plane, [""])
sketch9.MapMode = "FlatFace"
sketch9.addGeometry([
    Part.LineSegment(App.Vector(-12.5, 69.8, 0), App.Vector(-25, 69.8, 0)),
    Part.LineSegment(App.Vector(-25, 69.8, 0), App.Vector(-25, 71.4, 0)),
    Part.LineSegment(App.Vector(-25, 71.4, 0), App.Vector(-13.5, 71.4, 0)),
    Part.LineSegment(App.Vector(-13.5, 71.4, 0), App.Vector(-12.5, 69.8, 0)),
], False)
sketch9.addGeometry(Part.LineSegment(App.Vector(-25, 69.8, 0), App.Vector(-12.5, 69.8, 0)), True)  # axis
sketch9.addConstraint([
    Sketcher.Constraint("Coincident", 0, 2, 1, 1),
    Sketcher.Constraint("Coincident", 1, 2, 2, 1),
    Sketcher.Constraint("Coincident", 2, 2, 3, 1),
    Sketcher.Constraint("Coincident", 3, 2, 0, 1),
    Sketcher.Constraint("Horizontal", 0),
    Sketcher.Constraint("Vertical", 1),
    Sketcher.Constraint("Horizontal", 2),
    Sketcher.Constraint("Horizontal", 4),
    Sketcher.Constraint("Coincident", 4, 1, 0, 2),
    Sketcher.Constraint("Equal", 0, 4),
    Sketcher.Constraint("Angle", 3, Q("-59 deg")),
    Sketcher.Constraint("DistanceX", 2, 1, 2, 2, 11.5),
    Sketcher.Constraint("DistanceX", 0, 2, -1, 1, 25.0),
    Sketcher.Constraint("DistanceY", 1, 1, 1, 2, 1.65),
    Sketcher.Constraint("DistanceY", -1, 1, 1, 2, 71.4),
])
sketch9.setExpression("Constraints[11]", "Params.sketch9_width")
sketch9.setExpression("Constraints[13]", "Params.sketch9_height")
groove = doc.addObject("PartDesign::Groove", "Groove")
body.addObject(groove)
groove.Profile = sketch9
groove.ReferenceAxis = (sketch9, ["Axis0"])
groove.setExpression("Angle", "Params.groove_angle")
doc.recompute()

mirrored = doc.addObject("PartDesign::Mirrored", "Mirrored")
body.addObject(mirrored)
mirrored.Originals = [groove]
mirrored.MirrorPlane = (doc.YZ_Plane, [""])
body.Tip = mirrored

# Sketch on XZ plane
sketch10 = doc.addObject("Sketcher::SketchObject", "Sketch009")
body.addObject(sketch10)
sketch10.AttachmentSupport = (doc.XZ_Plane, [""])
sketch10.MapMode = "FlatFace"
sketch10.AttachmentOffset = App.Placement(App.Vector(0, 0, -5), App.Rotation())
sketch10.addGeometry(Part.Circle(App.Vector(0, 69.8, 0), App.Vector(0, 0, 1), 1.6), False)
sketch10.addConstraint([
    Sketcher.Constraint("PointOnObject", 0, 3, -2),
    Sketcher.Constraint("Diameter", 0, 3.3),
    Sketcher.Constraint("DistanceY", -1, 1, 0, 3, 69.75),
])
sketch10.setExpression("Constraints[1]", "Params.sketch10_diameter")
doc.recompute()
hole3 = doc.addObject("PartDesign::Hole", "Hole002")
body.addObject(hole3)
hole3.Profile = sketch10
hole3.ThreadType = "None"
hole3.setExpression("Diameter", "Params.hole3_diameter")
hole3.DepthType = "Dimension"
hole3.setExpression("Depth", "Params.hole3_depth")
hole3.DrillPoint = "Angled"
hole3.DrillPointAngle = 118
hole3.Reversed = True
doc.recompute()

fillet = doc.addObject("PartDesign::Fillet", "Fillet")
body.addObject(fillet)
fillet.Base = (hole3, edges_at(hole3, [
    (-25, 0, -10.25),
    (25, 0, -10.25),
    (-10, 0, 9.75),
    (-10, 0, -10.25),
    (10, 0, -10.25),
    (10, 0, 9.75),
    (-15, 0, 19.75),
    (15, 0, 19.75),
    (15, 0, 64.75),
    (-15, 0, 64.75),
]))
fillet.setExpression("Radius", "Params.fillet_radius")
doc.recompute()

chamfer = doc.addObject("PartDesign::Chamfer", "Chamfer")
body.addObject(chamfer)
chamfer.Base = (fillet, edges_at(fillet, [(-35, 0, -10.25), (35, 0, -10.25)]))
chamfer.setExpression("Size", "Params.chamfer_size")
doc.recompute()

chamfer2 = doc.addObject("PartDesign::Chamfer", "Chamfer001")
body.addObject(chamfer2)
chamfer2.Base = (chamfer, edges_at(chamfer, [(35, 5, -16.25), (-35, 5, -16.25)]))
chamfer2.setExpression("Size", "Params.chamfer2_size")
doc.recompute()

chamfer3 = doc.addObject("PartDesign::Chamfer", "Chamfer002")
body.addObject(chamfer3)
chamfer3.Base = (chamfer2, edges_at(chamfer2, [
    (-30.5, -5, -10.25),
    (-25.879, -5, -9.371),
    (-25, -5, 33.75),
    (30.5, -5, -10.25),
    (25.879, -5, -9.371),
    (25, -5, 33.75),
]))
chamfer3.setExpression("Size", "Params.chamfer3_size")

doc.recompute()
